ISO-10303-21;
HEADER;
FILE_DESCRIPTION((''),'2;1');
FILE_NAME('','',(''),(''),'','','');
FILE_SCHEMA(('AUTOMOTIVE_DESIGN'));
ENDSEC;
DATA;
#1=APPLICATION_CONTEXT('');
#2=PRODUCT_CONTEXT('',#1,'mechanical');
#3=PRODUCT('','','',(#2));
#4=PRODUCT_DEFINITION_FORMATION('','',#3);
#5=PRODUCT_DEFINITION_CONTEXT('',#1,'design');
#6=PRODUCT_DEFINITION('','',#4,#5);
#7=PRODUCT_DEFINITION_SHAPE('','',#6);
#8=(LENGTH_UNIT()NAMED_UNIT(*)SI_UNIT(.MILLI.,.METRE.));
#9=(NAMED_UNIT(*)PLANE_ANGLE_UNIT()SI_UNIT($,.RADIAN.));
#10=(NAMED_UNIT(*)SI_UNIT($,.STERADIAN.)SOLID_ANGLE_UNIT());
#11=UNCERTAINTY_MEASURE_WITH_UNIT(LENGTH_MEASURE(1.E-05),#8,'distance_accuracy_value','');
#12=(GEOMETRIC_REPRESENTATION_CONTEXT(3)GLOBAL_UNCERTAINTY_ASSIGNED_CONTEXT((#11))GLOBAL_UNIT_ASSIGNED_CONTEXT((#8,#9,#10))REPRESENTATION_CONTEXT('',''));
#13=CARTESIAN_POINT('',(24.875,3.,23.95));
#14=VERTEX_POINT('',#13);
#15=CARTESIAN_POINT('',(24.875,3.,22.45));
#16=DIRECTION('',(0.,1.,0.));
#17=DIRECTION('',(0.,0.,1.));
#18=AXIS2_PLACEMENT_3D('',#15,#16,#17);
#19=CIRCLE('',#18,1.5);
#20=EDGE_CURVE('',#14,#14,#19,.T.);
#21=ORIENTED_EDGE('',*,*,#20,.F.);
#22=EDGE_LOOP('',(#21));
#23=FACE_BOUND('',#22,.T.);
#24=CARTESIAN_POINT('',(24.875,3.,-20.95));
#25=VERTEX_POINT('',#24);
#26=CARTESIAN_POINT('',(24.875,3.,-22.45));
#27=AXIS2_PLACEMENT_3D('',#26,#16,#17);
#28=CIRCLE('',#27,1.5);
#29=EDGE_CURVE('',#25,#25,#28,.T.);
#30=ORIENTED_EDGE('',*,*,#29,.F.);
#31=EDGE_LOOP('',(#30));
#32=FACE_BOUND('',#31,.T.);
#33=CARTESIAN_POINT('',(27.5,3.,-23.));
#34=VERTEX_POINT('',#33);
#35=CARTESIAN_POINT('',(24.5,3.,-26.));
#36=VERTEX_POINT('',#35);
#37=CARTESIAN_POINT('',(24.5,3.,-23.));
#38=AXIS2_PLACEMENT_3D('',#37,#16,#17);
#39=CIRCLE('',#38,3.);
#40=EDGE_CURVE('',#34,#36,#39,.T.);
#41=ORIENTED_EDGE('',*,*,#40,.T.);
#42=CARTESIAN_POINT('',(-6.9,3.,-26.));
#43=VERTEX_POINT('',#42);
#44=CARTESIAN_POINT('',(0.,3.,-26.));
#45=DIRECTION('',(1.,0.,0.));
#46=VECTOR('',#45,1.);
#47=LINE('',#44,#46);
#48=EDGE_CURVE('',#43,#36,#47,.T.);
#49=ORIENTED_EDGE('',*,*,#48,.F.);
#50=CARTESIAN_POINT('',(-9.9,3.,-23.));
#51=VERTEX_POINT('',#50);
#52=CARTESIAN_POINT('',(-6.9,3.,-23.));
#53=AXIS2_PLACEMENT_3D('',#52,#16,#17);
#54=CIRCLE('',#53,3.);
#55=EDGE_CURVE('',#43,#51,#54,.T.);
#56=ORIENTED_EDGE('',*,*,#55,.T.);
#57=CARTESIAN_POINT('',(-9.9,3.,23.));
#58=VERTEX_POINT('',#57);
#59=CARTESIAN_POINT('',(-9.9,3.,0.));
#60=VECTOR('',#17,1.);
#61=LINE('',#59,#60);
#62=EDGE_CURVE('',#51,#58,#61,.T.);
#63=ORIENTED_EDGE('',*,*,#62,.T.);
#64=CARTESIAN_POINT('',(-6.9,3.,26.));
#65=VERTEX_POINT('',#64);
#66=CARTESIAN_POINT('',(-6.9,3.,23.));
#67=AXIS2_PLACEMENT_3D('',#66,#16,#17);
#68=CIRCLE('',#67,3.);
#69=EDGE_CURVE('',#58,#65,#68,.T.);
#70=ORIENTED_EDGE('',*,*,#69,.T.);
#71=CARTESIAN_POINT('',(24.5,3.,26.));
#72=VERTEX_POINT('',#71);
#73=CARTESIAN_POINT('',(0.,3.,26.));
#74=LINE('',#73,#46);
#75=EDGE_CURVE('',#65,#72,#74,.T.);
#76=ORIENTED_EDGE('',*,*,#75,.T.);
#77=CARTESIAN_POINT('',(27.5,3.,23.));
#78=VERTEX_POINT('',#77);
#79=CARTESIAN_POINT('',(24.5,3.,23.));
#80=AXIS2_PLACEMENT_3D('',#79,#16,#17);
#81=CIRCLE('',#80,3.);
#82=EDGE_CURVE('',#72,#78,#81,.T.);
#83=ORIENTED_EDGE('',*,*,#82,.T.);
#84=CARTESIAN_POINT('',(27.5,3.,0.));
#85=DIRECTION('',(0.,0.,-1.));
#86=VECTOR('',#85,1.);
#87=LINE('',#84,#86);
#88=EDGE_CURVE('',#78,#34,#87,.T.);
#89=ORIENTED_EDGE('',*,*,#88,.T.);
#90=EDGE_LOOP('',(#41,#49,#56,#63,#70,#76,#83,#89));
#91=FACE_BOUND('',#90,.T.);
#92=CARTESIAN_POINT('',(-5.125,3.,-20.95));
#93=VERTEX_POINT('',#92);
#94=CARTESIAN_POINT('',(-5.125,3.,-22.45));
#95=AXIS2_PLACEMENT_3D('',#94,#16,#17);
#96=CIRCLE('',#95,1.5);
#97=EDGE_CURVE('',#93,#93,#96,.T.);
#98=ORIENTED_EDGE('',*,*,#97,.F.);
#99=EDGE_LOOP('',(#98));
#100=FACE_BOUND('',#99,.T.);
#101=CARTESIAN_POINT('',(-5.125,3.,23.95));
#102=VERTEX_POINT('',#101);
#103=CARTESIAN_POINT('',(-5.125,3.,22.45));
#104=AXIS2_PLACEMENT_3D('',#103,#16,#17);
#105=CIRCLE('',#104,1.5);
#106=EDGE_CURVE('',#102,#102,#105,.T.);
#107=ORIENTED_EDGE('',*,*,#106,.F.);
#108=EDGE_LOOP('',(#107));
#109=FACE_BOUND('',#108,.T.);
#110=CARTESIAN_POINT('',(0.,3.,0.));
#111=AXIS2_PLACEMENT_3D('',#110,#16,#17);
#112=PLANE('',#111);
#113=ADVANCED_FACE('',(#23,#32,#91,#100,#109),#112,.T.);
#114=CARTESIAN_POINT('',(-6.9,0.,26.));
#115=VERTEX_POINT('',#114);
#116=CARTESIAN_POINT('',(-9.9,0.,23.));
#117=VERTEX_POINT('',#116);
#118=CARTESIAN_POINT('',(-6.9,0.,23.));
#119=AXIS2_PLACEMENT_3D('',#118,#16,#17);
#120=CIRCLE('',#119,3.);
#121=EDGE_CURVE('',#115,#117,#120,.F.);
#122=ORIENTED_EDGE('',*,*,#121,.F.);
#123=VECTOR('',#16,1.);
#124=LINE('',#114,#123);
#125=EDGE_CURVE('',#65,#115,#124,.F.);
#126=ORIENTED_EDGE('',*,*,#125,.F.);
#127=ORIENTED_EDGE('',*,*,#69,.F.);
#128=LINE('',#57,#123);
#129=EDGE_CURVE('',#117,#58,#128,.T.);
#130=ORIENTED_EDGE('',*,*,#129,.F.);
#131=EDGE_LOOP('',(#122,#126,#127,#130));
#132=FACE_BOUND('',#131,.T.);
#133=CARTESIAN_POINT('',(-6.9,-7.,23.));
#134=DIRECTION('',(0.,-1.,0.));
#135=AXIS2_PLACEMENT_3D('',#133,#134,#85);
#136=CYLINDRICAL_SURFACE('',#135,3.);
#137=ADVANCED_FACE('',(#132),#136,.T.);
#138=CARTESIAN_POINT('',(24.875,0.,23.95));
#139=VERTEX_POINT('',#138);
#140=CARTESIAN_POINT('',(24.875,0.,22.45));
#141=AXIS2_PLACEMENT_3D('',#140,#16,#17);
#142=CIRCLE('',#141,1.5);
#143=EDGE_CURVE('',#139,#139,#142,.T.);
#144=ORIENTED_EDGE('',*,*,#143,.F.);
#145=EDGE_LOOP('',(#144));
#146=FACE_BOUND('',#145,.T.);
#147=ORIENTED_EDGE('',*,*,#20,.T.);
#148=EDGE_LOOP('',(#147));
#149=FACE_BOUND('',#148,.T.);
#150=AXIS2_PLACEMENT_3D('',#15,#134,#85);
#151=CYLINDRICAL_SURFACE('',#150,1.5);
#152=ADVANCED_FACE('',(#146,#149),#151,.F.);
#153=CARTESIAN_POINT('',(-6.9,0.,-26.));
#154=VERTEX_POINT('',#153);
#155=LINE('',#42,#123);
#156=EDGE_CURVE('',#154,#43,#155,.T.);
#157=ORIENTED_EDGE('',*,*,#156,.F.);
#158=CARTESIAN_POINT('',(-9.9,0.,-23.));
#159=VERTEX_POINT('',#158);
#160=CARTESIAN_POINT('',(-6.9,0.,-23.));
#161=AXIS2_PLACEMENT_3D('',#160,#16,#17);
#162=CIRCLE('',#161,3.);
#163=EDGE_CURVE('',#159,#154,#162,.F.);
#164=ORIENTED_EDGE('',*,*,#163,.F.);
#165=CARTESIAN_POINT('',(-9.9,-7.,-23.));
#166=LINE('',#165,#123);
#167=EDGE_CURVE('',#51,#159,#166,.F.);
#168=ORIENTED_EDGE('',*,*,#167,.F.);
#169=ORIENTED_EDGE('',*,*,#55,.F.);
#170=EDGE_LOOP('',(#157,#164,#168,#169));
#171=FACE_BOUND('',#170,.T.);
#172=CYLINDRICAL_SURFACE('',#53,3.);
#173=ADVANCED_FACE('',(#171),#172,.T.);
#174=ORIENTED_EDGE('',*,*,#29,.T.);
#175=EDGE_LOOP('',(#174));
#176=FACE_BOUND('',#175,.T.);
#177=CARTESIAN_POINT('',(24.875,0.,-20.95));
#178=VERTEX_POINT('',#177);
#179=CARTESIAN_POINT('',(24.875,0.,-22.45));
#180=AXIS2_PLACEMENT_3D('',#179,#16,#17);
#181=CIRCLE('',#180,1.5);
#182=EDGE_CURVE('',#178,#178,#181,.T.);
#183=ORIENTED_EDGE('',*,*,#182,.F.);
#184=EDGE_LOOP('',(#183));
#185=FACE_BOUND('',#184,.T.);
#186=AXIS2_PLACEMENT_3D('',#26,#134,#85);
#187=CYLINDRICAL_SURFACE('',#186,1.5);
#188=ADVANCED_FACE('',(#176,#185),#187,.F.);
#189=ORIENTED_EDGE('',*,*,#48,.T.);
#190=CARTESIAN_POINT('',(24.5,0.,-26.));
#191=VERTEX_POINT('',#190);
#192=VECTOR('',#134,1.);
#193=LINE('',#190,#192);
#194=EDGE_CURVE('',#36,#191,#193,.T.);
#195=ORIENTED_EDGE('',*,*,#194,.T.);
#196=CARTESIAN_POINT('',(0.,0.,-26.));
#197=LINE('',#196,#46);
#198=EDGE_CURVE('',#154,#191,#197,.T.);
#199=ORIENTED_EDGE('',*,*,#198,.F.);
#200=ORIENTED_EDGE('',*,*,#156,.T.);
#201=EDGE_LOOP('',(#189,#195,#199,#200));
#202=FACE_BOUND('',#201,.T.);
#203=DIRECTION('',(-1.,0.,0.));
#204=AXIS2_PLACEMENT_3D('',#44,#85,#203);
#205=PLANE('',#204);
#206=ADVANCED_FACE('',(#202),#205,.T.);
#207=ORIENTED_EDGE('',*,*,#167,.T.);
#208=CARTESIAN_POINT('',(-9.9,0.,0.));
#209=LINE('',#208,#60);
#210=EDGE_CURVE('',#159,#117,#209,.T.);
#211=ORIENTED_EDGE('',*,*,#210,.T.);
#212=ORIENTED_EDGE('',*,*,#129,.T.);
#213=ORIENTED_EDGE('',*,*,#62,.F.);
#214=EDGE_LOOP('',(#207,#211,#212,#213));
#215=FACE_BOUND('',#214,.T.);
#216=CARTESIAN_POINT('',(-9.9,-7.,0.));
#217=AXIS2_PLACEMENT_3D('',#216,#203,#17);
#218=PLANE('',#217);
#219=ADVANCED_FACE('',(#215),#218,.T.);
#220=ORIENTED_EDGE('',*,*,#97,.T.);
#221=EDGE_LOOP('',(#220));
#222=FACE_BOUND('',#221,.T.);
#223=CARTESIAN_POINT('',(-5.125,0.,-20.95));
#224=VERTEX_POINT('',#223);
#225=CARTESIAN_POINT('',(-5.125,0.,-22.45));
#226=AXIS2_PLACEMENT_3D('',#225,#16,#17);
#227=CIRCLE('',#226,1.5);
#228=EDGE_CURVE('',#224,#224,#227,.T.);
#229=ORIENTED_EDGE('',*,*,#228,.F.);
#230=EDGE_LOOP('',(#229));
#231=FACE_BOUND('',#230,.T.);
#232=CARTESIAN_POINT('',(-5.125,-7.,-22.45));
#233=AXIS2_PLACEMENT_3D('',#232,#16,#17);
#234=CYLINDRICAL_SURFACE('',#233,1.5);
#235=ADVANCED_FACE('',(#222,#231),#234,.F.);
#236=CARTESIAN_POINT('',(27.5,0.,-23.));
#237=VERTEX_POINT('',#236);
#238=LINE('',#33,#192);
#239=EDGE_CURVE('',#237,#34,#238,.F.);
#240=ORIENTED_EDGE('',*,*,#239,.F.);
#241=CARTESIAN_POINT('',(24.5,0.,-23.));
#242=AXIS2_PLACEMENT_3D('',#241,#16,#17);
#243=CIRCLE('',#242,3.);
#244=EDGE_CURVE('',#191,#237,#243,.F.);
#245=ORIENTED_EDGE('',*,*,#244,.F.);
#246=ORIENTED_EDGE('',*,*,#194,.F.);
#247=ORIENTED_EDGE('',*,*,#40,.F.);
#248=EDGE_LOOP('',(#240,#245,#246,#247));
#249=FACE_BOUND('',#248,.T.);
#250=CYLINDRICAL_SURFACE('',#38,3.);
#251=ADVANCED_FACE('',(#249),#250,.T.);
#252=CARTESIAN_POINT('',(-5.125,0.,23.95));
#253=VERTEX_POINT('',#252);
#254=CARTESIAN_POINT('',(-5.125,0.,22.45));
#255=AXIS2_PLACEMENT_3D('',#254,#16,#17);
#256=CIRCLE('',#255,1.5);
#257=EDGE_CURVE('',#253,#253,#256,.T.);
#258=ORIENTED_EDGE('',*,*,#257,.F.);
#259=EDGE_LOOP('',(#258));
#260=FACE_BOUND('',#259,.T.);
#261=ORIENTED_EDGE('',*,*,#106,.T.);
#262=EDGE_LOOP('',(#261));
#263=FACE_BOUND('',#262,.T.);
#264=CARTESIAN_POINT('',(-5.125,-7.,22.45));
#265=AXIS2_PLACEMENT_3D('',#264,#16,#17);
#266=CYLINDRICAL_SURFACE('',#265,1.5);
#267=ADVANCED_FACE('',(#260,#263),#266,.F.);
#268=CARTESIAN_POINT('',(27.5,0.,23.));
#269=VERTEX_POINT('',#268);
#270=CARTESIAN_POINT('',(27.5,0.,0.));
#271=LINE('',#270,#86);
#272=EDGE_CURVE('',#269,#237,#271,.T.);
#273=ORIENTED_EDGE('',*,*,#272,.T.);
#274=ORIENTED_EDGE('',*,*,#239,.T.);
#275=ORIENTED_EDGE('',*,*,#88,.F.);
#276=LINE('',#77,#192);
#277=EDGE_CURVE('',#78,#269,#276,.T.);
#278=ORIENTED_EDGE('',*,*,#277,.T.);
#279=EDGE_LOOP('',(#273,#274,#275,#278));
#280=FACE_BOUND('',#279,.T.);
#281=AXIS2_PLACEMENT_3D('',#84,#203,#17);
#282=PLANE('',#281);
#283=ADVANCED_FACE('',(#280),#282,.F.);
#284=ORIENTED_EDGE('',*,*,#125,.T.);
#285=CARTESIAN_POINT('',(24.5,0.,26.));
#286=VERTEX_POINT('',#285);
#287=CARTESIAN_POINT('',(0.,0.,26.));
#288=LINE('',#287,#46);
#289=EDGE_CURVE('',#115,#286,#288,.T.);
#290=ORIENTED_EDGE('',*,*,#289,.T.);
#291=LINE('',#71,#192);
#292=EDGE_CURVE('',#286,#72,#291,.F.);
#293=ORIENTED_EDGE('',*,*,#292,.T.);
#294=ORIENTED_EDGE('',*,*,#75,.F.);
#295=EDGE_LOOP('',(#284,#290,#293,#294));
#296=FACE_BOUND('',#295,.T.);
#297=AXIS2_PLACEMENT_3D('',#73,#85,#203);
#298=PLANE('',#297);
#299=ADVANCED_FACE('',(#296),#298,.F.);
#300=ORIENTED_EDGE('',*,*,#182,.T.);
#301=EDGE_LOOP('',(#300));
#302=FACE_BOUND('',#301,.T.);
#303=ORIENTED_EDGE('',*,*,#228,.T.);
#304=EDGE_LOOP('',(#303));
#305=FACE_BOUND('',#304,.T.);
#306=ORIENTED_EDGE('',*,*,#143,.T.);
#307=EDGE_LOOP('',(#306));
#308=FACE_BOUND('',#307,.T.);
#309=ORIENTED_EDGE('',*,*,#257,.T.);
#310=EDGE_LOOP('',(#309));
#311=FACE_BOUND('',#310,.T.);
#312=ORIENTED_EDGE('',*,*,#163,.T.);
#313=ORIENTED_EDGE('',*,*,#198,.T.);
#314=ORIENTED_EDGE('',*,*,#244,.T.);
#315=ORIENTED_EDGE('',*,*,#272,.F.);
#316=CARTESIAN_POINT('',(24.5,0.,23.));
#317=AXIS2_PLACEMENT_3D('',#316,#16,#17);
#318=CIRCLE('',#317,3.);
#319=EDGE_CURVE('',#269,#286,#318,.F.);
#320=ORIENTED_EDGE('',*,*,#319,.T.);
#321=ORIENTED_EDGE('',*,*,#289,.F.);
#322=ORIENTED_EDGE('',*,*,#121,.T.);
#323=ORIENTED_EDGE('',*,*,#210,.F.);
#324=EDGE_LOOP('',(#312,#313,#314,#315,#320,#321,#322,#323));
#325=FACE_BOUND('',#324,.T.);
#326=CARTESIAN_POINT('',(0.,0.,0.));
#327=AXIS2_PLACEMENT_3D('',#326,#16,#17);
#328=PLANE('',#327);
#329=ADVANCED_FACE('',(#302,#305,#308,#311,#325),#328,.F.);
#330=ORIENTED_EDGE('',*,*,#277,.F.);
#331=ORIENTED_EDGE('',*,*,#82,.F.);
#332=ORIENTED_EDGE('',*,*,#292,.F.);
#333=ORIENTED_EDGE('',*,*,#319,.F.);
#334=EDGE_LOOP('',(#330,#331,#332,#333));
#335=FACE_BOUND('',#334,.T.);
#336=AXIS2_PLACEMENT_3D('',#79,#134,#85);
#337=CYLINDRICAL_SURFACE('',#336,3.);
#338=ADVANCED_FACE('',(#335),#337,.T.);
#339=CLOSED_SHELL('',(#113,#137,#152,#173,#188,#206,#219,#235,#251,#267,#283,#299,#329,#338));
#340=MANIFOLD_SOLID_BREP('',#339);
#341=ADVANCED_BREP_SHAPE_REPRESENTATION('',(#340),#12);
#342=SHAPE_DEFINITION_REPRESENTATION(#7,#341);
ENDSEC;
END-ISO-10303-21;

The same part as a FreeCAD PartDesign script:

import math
import FreeCAD as App
import Part
import Sketcher

V = App.Vector


def edges_at(feature, points):
    """Names of the edges that pass closest to the given points."""
    edges = feature.Shape.Edges
    near = lambda p: min(range(len(edges)), key=lambda i: edges[i].distToShape(Part.Vertex(*p))[0])
    return sorted({f"Edge{near(p) + 1}" for p in points})

doc = App.newDocument("Part")
body = doc.addObject("PartDesign::Body", "Body")

# Sketch on XZ plane
sketch1 = body.newObject("Sketcher::SketchObject", "Sketch")
sketch1.AttachmentSupport = (doc.getObject("XZ_Plane"), [""])
sketch1.MapMode = "FlatFace"
sketch1.addGeometry(Part.LineSegment(V(-37.5, -26, 0), V(-37.5, 26, 0)), False)
sketch1.addGeometry(Part.LineSegment(V(-37.5, 26, 0), V(27.5, 26, 0)), False)
sketch1.addGeometry(Part.LineSegment(V(27.5, 26, 0), V(27.5, -26, 0)), False)
sketch1.addGeometry(Part.LineSegment(V(27.5, -26, 0), V(-37.5, -26, 0)), False)
sketch1.addGeometry(Part.Circle(V(-24.9, 22.4, 0), V(0, 0, 1), 1.5), False)
sketch1.addGeometry(Part.Circle(V(24.9, 22.4, 0), V(0, 0, 1), 1.5), False)
sketch1.addGeometry(Part.Circle(V(-24.9, -22.4, 0), V(0, 0, 1), 1.5), False)
sketch1.addGeometry(Part.Circle(V(24.9, -22.4, 0), V(0, 0, 1), 1.5), False)
sketch1.addConstraint(Sketcher.Constraint("Coincident", 0, 2, 1, 1))
sketch1.addConstraint(Sketcher.Constraint("Coincident", 1, 2, 2, 1))
sketch1.addConstraint(Sketcher.Constraint("Coincident", 2, 2, 3, 1))
sketch1.addConstraint(Sketcher.Constraint("Coincident", 3, 2, 0, 1))
sketch1.addConstraint(Sketcher.Constraint("Vertical", 0))
sketch1.addConstraint(Sketcher.Constraint("Horizontal", 1))
sketch1.addConstraint(Sketcher.Constraint("Vertical", 2))
sketch1.addConstraint(Sketcher.Constraint("Horizontal", 3))
sketch1.addConstraint(Sketcher.Constraint("Equal", 4, 5))
sketch1.addConstraint(Sketcher.Constraint("Equal", 5, 6))
sketch1.addConstraint(Sketcher.Constraint("Equal", 6, 7))
sketch1.addConstraint(Sketcher.Constraint("Symmetric", 5, 3, 6, 3, -1, 1))
sketch1.addConstraint(Sketcher.Constraint("Symmetric", 4, 3, 7, 3, -1, 1))
sketch1.addConstraint(Sketcher.Constraint("Symmetric", 4, 3, 5, 3, -2))
sketch1.addConstraint(Sketcher.Constraint("Diameter", 4, 3.0))
sketch1.addConstraint(Sketcher.Constraint("DistanceX", 1, 1, 1, 2, 65.0))
sketch1.addConstraint(Sketcher.Constraint("DistanceY", 0, 1, 0, 2, 52.0))
sketch1.addConstraint(Sketcher.Constraint("DistanceY", -1, 1, 0, 2, 26.0))
sketch1.addConstraint(Sketcher.Constraint("DistanceX", 0, 2, -1, 1, 37.5))
sketch1.addConstraint(Sketcher.Constraint("DistanceY", 6, 3, 4, 3, 44.9))
sketch1.addConstraint(Sketcher.Constraint("DistanceX", 4, 3, 5, 3, 49.75))
pad1 = body.newObject("PartDesign::Pad", "Pad")
pad1.Profile = sketch1
pad1.Length = 3
pad1.Reversed = True
doc.recompute()

fillet = body.newObject("PartDesign::Fillet", "Fillet")
fillet.Base = (pad1, edges_at(pad1, [
    (-37.5, 1.5, 26),
    (-37.5, 1.5, -26),
    (27.5, 1.5, -26),
    (27.5, 1.5, 26),
]))
fillet.Radius = 3

# Sketch on XZ plane
sketch2 = body.newObject("Sketcher::SketchObject", "Sketch001")
sketch2.AttachmentSupport = (doc.getObject("XZ_Plane"), [""])
sketch2.MapMode = "FlatFace"
sketch2.AttachmentOffset = App.Placement(V(0, 0, 7), App.Rotation())
sketch2.addGeometry(Part.Circle(V(24.9, -22.4, 0), V(0, 0, 1), 1.5), False)
sketch2.addGeometry(Part.Circle(V(-5.1, -22.4, 0), V(0, 0, 1), 1.5), False)
sketch2.addGeometry(Part.Circle(V(-5.1, 22.4, 0), V(0, 0, 1), 1.5), False)
sketch2.addGeometry(Part.Circle(V(24.9, 22.4, 0), V(0, 0, 1), 1.5), False)
sketch2.addConstraint(Sketcher.Constraint("Equal", 0, 1))
sketch2.addConstraint(Sketcher.Constraint("Equal", 1, 2))
sketch2.addConstraint(Sketcher.Constraint("Equal", 2, 3))
sketch2.addConstraint(Sketcher.Constraint("Symmetric", 1, 3, 2, 3, -1))
sketch2.addConstraint(Sketcher.Constraint("Symmetric", 0, 3, 3, 3, -1))
sketch2.addConstraint(Sketcher.Constraint("Horizontal", 0, 3, 1, 3))
sketch2.addConstraint(Sketcher.Constraint("Diameter", 0, 3.0))
sketch2.addConstraint(Sketcher.Constraint("DistanceX", 1, 3, 0, 3, 30.0))
sketch2.addConstraint(Sketcher.Constraint("DistanceY", 1, 3, 2, 3, 44.9))
sketch2.addConstraint(Sketcher.Constraint("DistanceX", -1, 1, 0, 3, 24.875))
pocket1 = body.newObject("PartDesign::Pocket", "Pocket")
pocket1.Profile = sketch2
pocket1.Length = 10

# Sketch on XZ plane
sketch3 = body.newObject("Sketcher::SketchObject", "Sketch002")
sketch3.AttachmentSupport = (doc.getObject("XZ_Plane"), [""])
sketch3.MapMode = "FlatFace"
sketch3.AttachmentOffset = App.Placement(V(0, 0, -3), App.Rotation())
sketch3.addGeometry(Part.LineSegment(V(-9.9, 26, 0), V(-9.9, -26, 0)), False)
sketch3.addGeometry(Part.LineSegment(V(-9.9, -26, 0), V(-34.5, -26, 0)), False)
sketch3.addGeometry(Part.ArcOfCircle(Part.Circle(V(-34.5, -23, 0), V(0, 0, 1), 3), math.radians(180), math.radians(270)), False)
sketch3.addGeometry(Part.LineSegment(V(-37.5, -23, 0), V(-37.5, 23, 0)), False)
sketch3.addGeometry(Part.ArcOfCircle(Part.Circle(V(-34.5, 23, 0), V(0, 0, 1), 3), math.radians(90), math.radians(180)), False)
sketch3.addGeometry(Part.LineSegment(V(-34.5, 26, 0), V(-9.9, 26, 0)), False)
sketch3.addGeometry(Part.Circle(V(-24.9, 22.4, 0), V(0, 0, 1), 1.5), False)
sketch3.addGeometry(Part.Circle(V(-24.9, -22.4, 0), V(0, 0, 1), 1.5), False)
sketch3.addConstraint(Sketcher.Constraint("Coincident", 0, 2, 1, 1))
sketch3.addConstraint(Sketcher.Constraint("Tangent", 1, 2, 2, 2))
sketch3.addConstraint(Sketcher.Constraint("Tangent", 2, 1, 3, 1))
sketch3.addConstraint(Sketcher.Constraint("Tangent", 3, 2, 4, 2))
sketch3.addConstraint(Sketcher.Constraint("Tangent", 4, 1, 5, 1))
sketch3.addConstraint(Sketcher.Constraint("Coincident", 5, 2, 0, 1))
sketch3.addConstraint(Sketcher.Constraint("Vertical", 0))
sketch3.addConstraint(Sketcher.Constraint("Horizontal", 1))
sketch3.addConstraint(Sketcher.Constraint("Vertical", 3))
sketch3.addConstraint(Sketcher.Constraint("Horizontal", 5))
sketch3.addConstraint(Sketcher.Constraint("Equal", 2, 4))
sketch3.addConstraint(Sketcher.Constraint("Equal", 6, 7))
sketch3.addConstraint(Sketcher.Constraint("Symmetric", 6, 3, 7, 3, -1))
sketch3.addConstraint(Sketcher.Constraint("Diameter", 6, 3.0))
sketch3.addConstraint(Sketcher.Constraint("Radius", 2, 3.0))
sketch3.addConstraint(Sketcher.Constraint("DistanceY", 0, 2, 0, 1, 52.0))
sketch3.addConstraint(Sketcher.Constraint("DistanceX", 1, 2, 1, 1, 24.6))
sketch3.addConstraint(Sketcher.Constraint("DistanceY", 2, 3, -1, 1, 23.0))
sketch3.addConstraint(Sketcher.Constraint("DistanceX", 2, 3, -1, 1, 34.5))
sketch3.addConstraint(Sketcher.Constraint("DistanceY", 7, 3, 6, 3, 44.9))
sketch3.addConstraint(Sketcher.Constraint("DistanceX", 6, 3, -1, 1, 24.875))
pocket2 = body.newObject("PartDesign::Pocket", "Pocket001")
pocket2.Profile = sketch3
pocket2.Length = 10
pocket2.Reversed = True
doc.recompute()

fillet2 = body.newObject("PartDesign::Fillet", "Fillet001")
fillet2.Base = (pocket2, edges_at(pocket2, [(-9.9, 1.5, -26), (-9.9, 1.5, 26)]))
fillet2.Radius = 3

doc.recompute()
